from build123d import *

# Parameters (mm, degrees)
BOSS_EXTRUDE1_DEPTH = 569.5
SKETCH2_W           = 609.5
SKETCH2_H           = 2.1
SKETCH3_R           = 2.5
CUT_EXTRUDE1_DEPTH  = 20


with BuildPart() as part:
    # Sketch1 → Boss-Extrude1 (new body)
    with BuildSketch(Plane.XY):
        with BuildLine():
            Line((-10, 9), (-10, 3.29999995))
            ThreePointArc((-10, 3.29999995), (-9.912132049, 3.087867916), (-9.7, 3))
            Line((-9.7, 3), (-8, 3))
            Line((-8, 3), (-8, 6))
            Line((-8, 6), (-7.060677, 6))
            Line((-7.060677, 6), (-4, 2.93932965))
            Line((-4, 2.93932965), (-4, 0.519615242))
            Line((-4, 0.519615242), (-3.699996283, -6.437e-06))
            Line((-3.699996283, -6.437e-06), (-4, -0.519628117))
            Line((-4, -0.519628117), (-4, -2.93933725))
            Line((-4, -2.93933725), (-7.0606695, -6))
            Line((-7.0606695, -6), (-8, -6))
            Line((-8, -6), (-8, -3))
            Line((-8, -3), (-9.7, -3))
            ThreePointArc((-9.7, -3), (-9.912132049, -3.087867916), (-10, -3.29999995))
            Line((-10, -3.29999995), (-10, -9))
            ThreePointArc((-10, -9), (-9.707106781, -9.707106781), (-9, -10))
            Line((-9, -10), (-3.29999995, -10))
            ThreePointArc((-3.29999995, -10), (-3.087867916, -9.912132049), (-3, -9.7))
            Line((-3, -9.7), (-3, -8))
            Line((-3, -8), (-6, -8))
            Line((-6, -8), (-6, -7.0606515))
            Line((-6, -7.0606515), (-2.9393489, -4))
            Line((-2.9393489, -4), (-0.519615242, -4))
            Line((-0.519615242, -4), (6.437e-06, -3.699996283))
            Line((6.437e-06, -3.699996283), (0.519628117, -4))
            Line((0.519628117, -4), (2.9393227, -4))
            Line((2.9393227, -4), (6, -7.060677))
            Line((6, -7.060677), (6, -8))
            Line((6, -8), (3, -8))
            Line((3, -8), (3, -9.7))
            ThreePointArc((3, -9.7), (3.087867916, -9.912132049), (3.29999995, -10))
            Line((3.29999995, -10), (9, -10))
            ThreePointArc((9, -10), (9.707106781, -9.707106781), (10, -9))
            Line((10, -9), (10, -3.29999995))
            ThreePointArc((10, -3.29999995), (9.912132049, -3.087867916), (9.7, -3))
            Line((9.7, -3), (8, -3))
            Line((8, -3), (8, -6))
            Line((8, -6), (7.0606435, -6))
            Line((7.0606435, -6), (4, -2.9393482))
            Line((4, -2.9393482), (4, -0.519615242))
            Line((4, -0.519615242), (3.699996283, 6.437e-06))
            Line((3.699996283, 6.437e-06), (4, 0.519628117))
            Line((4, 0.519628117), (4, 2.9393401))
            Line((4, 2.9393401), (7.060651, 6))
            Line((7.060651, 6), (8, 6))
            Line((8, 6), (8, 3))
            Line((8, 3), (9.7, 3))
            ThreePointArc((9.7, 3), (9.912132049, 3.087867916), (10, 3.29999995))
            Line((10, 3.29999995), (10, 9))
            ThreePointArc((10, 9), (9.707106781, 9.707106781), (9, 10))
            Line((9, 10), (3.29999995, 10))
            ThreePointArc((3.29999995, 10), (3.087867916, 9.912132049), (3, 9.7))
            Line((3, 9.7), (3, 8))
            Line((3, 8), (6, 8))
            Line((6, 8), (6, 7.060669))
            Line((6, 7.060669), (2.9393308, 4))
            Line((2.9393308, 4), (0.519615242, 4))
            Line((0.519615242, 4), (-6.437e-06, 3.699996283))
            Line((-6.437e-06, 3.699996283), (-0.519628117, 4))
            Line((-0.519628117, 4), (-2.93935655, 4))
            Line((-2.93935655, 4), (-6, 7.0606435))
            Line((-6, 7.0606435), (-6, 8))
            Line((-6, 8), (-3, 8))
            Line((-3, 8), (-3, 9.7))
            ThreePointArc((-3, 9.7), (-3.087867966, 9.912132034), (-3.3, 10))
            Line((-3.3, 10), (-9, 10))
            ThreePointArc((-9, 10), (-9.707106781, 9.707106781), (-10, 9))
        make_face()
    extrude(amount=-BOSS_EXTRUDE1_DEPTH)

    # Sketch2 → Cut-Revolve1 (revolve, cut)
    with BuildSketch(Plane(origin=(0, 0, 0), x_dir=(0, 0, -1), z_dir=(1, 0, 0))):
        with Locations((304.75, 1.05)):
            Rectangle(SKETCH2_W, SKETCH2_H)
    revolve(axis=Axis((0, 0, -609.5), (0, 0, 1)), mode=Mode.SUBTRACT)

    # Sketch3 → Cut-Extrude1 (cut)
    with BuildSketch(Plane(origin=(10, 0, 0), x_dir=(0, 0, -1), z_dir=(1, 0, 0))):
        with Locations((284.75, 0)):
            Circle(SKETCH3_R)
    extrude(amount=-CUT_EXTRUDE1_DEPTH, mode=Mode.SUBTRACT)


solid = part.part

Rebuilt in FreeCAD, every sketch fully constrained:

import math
import FreeCAD as App
import Part
import Sketcher
from FreeCAD import Vector
Q = App.Units.Quantity

doc = App.newDocument("Part")
params = doc.addObject("Spreadsheet::Sheet", "Params")
for row, (alias, value) in enumerate([
    ("sketch1_radius", "1 mm"),
    ("sketch1_radius2", "0.3 mm"),
    ("sketch1_width", "3 mm"),
    ("sketch1_width2", "1.7 mm"),
    ("sketch1_width3", "5.7 mm"),
    ("pad1_length", "569.5 mm"),
    ("sketch2_width", "2.1 mm"),
    ("sketch2_height", "609.5 mm"),
    ("groove_angle", "360 deg"),
    ("sketch3_diameter", "5 mm"),
    ("pocket1_length", "20 mm"),
], start=1):
    params.set(f"A{row}", alias)
    params.set(f"B{row}", "=" + value)
    params.setAlias(f"B{row}", alias)

body = doc.addObject("PartDesign::Body", "Body")

# Sketch on XY plane
sketch1 = doc.addObject("Sketcher::SketchObject", "Sketch")
body.addObject(sketch1)
sketch1.AttachmentSupport = (doc.XY_Plane, [""])
sketch1.MapMode = "FlatFace"
sketch1.addGeometry([
    Part.LineSegment(Vector(-10, 9, 0), Vector(-10, 3.3, 0)),  # 0
    Part.ArcOfCircle(Part.Circle(Vector(-9.7, 3.3, 0), Vector(0, 0, 1), 0.3), math.radians(179.999989), math.radians(270.000021)),  # 1
    Part.LineSegment(Vector(-9.7, 3, 0), Vector(-8, 3, 0)),  # 2
    Part.LineSegment(Vector(-8, 3, 0), Vector(-8, 6, 0)),  # 3
    Part.LineSegment(Vector(-8, 6, 0), Vector(-7.060677, 6, 0)),  # 4
    Part.LineSegment(Vector(-7.060677, 6, 0), Vector(-4, 2.93933, 0)),  # 5
    Part.LineSegment(Vector(-4, 2.93933, 0), Vector(-4, 0.519615, 0)),  # 6
    Part.LineSegment(Vector(-4, 0.519615, 0), Vector(-3.699996, -0.000006, 0)),  # 7
    Part.LineSegment(Vector(-3.699996, -0.000006, 0), Vector(-4, -0.519628, 0)),  # 8
    Part.LineSegment(Vector(-4, -0.519628, 0), Vector(-4, -2.939337, 0)),  # 9
    Part.LineSegment(Vector(-4, -2.939337, 0), Vector(-7.06067, -6, 0)),  # 10
    Part.LineSegment(Vector(-7.06067, -6, 0), Vector(-8, -6, 0)),  # 11
    Part.LineSegment(Vector(-8, -6, 0), Vector(-8, -3, 0)),  # 12
    Part.LineSegment(Vector(-8, -3, 0), Vector(-9.7, -3, 0)),  # 13
    Part.ArcOfCircle(Part.Circle(Vector(-9.7, -3.3, 0), Vector(0, 0, 1), 0.3), math.radians(89.999979), math.radians(180.000011)),  # 14
    Part.LineSegment(Vector(-10, -3.3, 0), Vector(-10, -9, 0)),  # 15
    Part.ArcOfCircle(Part.Circle(Vector(-9, -9, 0), Vector(0, 0, 1), 1), math.radians(-180), math.radians(-90)),  # 16
    Part.LineSegment(Vector(-9, -10, 0), Vector(-3.3, -10, 0)),  # 17
    Part.ArcOfCircle(Part.Circle(Vector(-3.3, -9.7, 0), Vector(0, 0, 1), 0.3), math.radians(-90.000011), math.radians(0.000021)),  # 18
    Part.LineSegment(Vector(-3, -9.7, 0), Vector(-3, -8, 0)),  # 19
    Part.LineSegment(Vector(-3, -8, 0), Vector(-6, -8, 0)),  # 20
    Part.LineSegment(Vector(-6, -8, 0), Vector(-6, -7.060651, 0)),  # 21
    Part.LineSegment(Vector(-6, -7.060651, 0), Vector(-2.939349, -4, 0)),  # 22
    Part.LineSegment(Vector(-2.939349, -4, 0), Vector(-0.519615, -4, 0)),  # 23
    Part.LineSegment(Vector(-0.519615, -4, 0), Vector(0.000006, -3.699996, 0)),  # 24
    Part.LineSegment(Vector(0.000006, -3.699996, 0), Vector(0.519628, -4, 0)),  # 25
    Part.LineSegment(Vector(0.519628, -4, 0), Vector(2.939323, -4, 0)),  # 26
    Part.LineSegment(Vector(2.939323, -4, 0), Vector(6, -7.060677, 0)),  # 27
    Part.LineSegment(Vector(6, -7.060677, 0), Vector(6, -8, 0)),  # 28
    Part.LineSegment(Vector(6, -8, 0), Vector(3, -8, 0)),  # 29
    Part.LineSegment(Vector(3, -8, 0), Vector(3, -9.7, 0)),  # 30
    Part.ArcOfCircle(Part.Circle(Vector(3.3, -9.7, 0), Vector(0, 0, 1), 0.3), math.radians(179.999979), math.radians(270.000011)),  # 31
    Part.LineSegment(Vector(3.3, -10, 0), Vector(9, -10, 0)),  # 32
    Part.ArcOfCircle(Part.Circle(Vector(9, -9, 0), Vector(0, 0, 1), 1), math.radians(-90), math.radians(0)),  # 33
    Part.LineSegment(Vector(10, -9, 0), Vector(10, -3.3, 0)),  # 34
    Part.ArcOfCircle(Part.Circle(Vector(9.7, -3.3, 0), Vector(0, 0, 1), 0.3), math.radians(-0.000011), math.radians(90.000021)),  # 35
    Part.LineSegment(Vector(9.7, -3, 0), Vector(8, -3, 0)),  # 36
    Part.LineSegment(Vector(8, -3, 0), Vector(8, -6, 0)),  # 37
    Part.LineSegment(Vector(8, -6, 0), Vector(7.060644, -6, 0)),  # 38
    Part.LineSegment(Vector(7.060644, -6, 0), Vector(4, -2.939348, 0)),  # 39
    Part.LineSegment(Vector(4, -2.939348, 0), Vector(4, -0.519615, 0)),  # 40
    Part.LineSegment(Vector(4, -0.519615, 0), Vector(3.699996, 0.000006, 0)),  # 41
    Part.LineSegment(Vector(3.699996, 0.000006, 0), Vector(4, 0.519628, 0)),  # 42
    Part.LineSegment(Vector(4, 0.519628, 0), Vector(4, 2.93934, 0)),  # 43
    Part.LineSegment(Vector(4, 2.93934, 0), Vector(7.060651, 6, 0)),  # 44
    Part.LineSegment(Vector(7.060651, 6, 0), Vector(8, 6, 0)),  # 45
    Part.LineSegment(Vector(8, 6, 0), Vector(8, 3, 0)),  # 46
    Part.LineSegment(Vector(8, 3, 0), Vector(9.7, 3, 0)),  # 47
    Part.ArcOfCircle(Part.Circle(Vector(9.7, 3.3, 0), Vector(0, 0, 1), 0.3), math.radians(-90.000021), math.radians(0.000011)),  # 48
    Part.LineSegment(Vector(10, 3.3, 0), Vector(10, 9, 0)),  # 49
    Part.ArcOfCircle(Part.Circle(Vector(9, 9, 0), Vector(0, 0, 1), 1), math.radians(0), math.radians(90)),  # 50
    Part.LineSegment(Vector(9, 10, 0), Vector(3.3, 10, 0)),  # 51
    Part.ArcOfCircle(Part.Circle(Vector(3.3, 9.7, 0), Vector(0, 0, 1), 0.3), math.radians(89.999989), math.radians(180.000021)),  # 52
    Part.LineSegment(Vector(3, 9.7, 0), Vector(3, 8, 0)),  # 53
    Part.LineSegment(Vector(3, 8, 0), Vector(6, 8, 0)),  # 54
    Part.LineSegment(Vector(6, 8, 0), Vector(6, 7.060669, 0)),  # 55
    Part.LineSegment(Vector(6, 7.060669, 0), Vector(2.939331, 4, 0)),  # 56
    Part.LineSegment(Vector(2.939331, 4, 0), Vector(0.519615, 4, 0)),  # 57
    Part.LineSegment(Vector(0.519615, 4, 0), Vector(-0.000006, 3.699996, 0)),  # 58
    Part.LineSegment(Vector(-0.000006, 3.699996, 0), Vector(-0.519628, 4, 0)),  # 59
    Part.LineSegment(Vector(-0.519628, 4, 0), Vector(-2.939357, 4, 0)),  # 60
    Part.LineSegment(Vector(-2.939357, 4, 0), Vector(-6, 7.060644, 0)),  # 61
    Part.LineSegment(Vector(-6, 7.060644, 0), Vector(-6, 8, 0)),  # 62
    Part.LineSegment(Vector(-6, 8, 0), Vector(-3, 8, 0)),  # 63
    Part.LineSegment(Vector(-3, 8, 0), Vector(-3, 9.7, 0)),  # 64
    Part.ArcOfCircle(Part.Circle(Vector(-3.3, 9.7, 0), Vector(0, 0, 1), 0.3), math.radians(0), math.radians(90)),  # 65
    Part.LineSegment(Vector(-3.3, 10, 0), Vector(-9, 10, 0)),  # 66
    Part.ArcOfCircle(Part.Circle(Vector(-9, 9, 0), Vector(0, 0, 1), 1), math.radians(90), math.radians(180)),  # 67
], False)
sketch1.addConstraint([
    Sketcher.Constraint("Tangent", 0, 2, 1, 1),
    Sketcher.Constraint("Tangent", 1, 2, 2, 1),
    Sketcher.Constraint("Coincident", 2, 2, 3, 1),
    Sketcher.Constraint("Coincident", 3, 2, 4, 1),
    Sketcher.Constraint("Coincident", 4, 2, 5, 1),
    Sketcher.Constraint("Coincident", 5, 2, 6, 1),
    Sketcher.Constraint("Coincident", 6, 2, 7, 1),
    Sketcher.Constraint("Coincident", 7, 2, 8, 1),
    Sketcher.Constraint("Coincident", 8, 2, 9, 1),
    Sketcher.Constraint("Coincident", 9, 2, 10, 1),
    Sketcher.Constraint("Coincident", 10, 2, 11, 1),
    Sketcher.Constraint("Coincident", 11, 2, 12, 1),
    Sketcher.Constraint("Coincident", 12, 2, 13, 1),
    Sketcher.Constraint("Tangent", 13, 2, 14, 1),
    Sketcher.Constraint("Tangent", 14, 2, 15, 1),
    Sketcher.Constraint("Tangent", 15, 2, 16, 1),
    Sketcher.Constraint("Tangent", 16, 2, 17, 1),
    Sketcher.Constraint("Tangent", 17, 2, 18, 1),
    Sketcher.Constraint("Tangent", 18, 2, 19, 1),
    Sketcher.Constraint("Coincident", 19, 2, 20, 1),
    Sketcher.Constraint("Coincident", 20, 2, 21, 1),
    Sketcher.Constraint("Coincident", 21, 2, 22, 1),
    Sketcher.Constraint("Coincident", 22, 2, 23, 1),
    Sketcher.Constraint("Coincident", 23, 2, 24, 1),
    Sketcher.Constraint("Coincident", 24, 2, 25, 1),
    Sketcher.Constraint("Coincident", 25, 2, 26, 1),
    Sketcher.Constraint("Coincident", 26, 2, 27, 1),
    Sketcher.Constraint("Coincident", 27, 2, 28, 1),
    Sketcher.Constraint("Coincident", 28, 2, 29, 1),
    Sketcher.Constraint("Coincident", 29, 2, 30, 1),
    Sketcher.Constraint("Tangent", 30, 2, 31, 1),
    Sketcher.Constraint("Tangent", 31, 2, 32, 1),
    Sketcher.Constraint("Tangent", 32, 2, 33, 1),
    Sketcher.Constraint("Tangent", 33, 2, 34, 1),
    Sketcher.Constraint("Tangent", 34, 2, 35, 1),
    Sketcher.Constraint("Tangent", 35, 2, 36, 1),
    Sketcher.Constraint("Coincident", 36, 2, 37, 1),
    Sketcher.Constraint("Coincident", 37, 2, 38, 1),
    Sketcher.Constraint("Coincident", 38, 2, 39, 1),
    Sketcher.Constraint("Coincident", 39, 2, 40, 1),
    Sketcher.Constraint("Coincident", 40, 2, 41, 1),
    Sketcher.Constraint("Coincident", 41, 2, 42, 1),
    Sketcher.Constraint("Coincident", 42, 2, 43, 1),
    Sketcher.Constraint("Coincident", 43, 2, 44, 1),
    Sketcher.Constraint("Coincident", 44, 2, 45, 1),
    Sketcher.Constraint("Coincident", 45, 2, 46, 1),
    Sketcher.Constraint("Coincident", 46, 2, 47, 1),
    Sketcher.Constraint("Tangent", 47, 2, 48, 1),
    Sketcher.Constraint("Tangent", 48, 2, 49, 1),
    Sketcher.Constraint("Tangent", 49, 2, 50, 1),
    Sketcher.Constraint("Tangent", 50, 2, 51, 1),
    Sketcher.Constraint("Tangent", 51, 2, 52, 1),
    Sketcher.Constraint("Tangent", 52, 2, 53, 1),
    Sketcher.Constraint("Coincident", 53, 2, 54, 1),
    Sketcher.Constraint("Coincident", 54, 2, 55, 1),
    Sketcher.Constraint("Coincident", 55, 2, 56, 1),
    Sketcher.Constraint("Coincident", 56, 2, 57, 1),
    Sketcher.Constraint("Coincident", 57, 2, 58, 1),
    Sketcher.Constraint("Coincident", 58, 2, 59, 1),
    Sketcher.Constraint("Coincident", 59, 2, 60, 1),
    Sketcher.Constraint("Coincident", 60, 2, 61, 1),
    Sketcher.Constraint("Coincident", 61, 2, 62, 1),
    Sketcher.Constraint("Coincident", 62, 2, 63, 1),
    Sketcher.Constraint("Coincident", 63, 2, 64, 1),
    Sketcher.Constraint("Tangent", 64, 2, 65, 1),
    Sketcher.Constraint("Tangent", 65, 2, 66, 1),
    Sketcher.Constraint("Tangent", 66, 2, 67, 1),
    Sketcher.Constraint("Tangent", 67, 2, 0, 1),
    Sketcher.Constraint("Vertical", 0),
    Sketcher.Constraint("Horizontal", 2),
    Sketcher.Constraint("Vertical", 3),
    Sketcher.Constraint("Horizontal", 4),
    Sketcher.Constraint("Vertical", 6),
    Sketcher.Constraint("Vertical", 9),
    Sketcher.Constraint("Horizontal", 11),
    Sketcher.Constraint("Vertical", 12),
    Sketcher.Constraint("Horizontal", 13),
    Sketcher.Constraint("Vertical", 15),
    Sketcher.Constraint("Horizontal", 17),
    Sketcher.Constraint("Vertical", 19),
    Sketcher.Constraint("Horizontal", 20),
    Sketcher.Constraint("Vertical", 21),
    Sketcher.Constraint("Horizontal", 23),
    Sketcher.Constraint("Horizontal", 26),
    Sketcher.Constraint("Vertical", 28),
    Sketcher.Constraint("Horizontal", 29),
    Sketcher.Constraint("Vertical", 30),
    Sketcher.Constraint("Horizontal", 32),
    Sketcher.Constraint("Vertical", 34),
    Sketcher.Constraint("Horizontal", 36),
    Sketcher.Constraint("Vertical", 37),
    Sketcher.Constraint("Horizontal", 38),
    Sketcher.Constraint("Vertical", 40),
    Sketcher.Constraint("Vertical", 43),
    Sketcher.Constraint("Horizontal", 45),
    Sketcher.Constraint("Vertical", 46),
    Sketcher.Constraint("Horizontal", 47),
    Sketcher.Constraint("Vertical", 49),
    Sketcher.Constraint("Horizontal", 51),
    Sketcher.Constraint("Vertical", 53),
    Sketcher.Constraint("Horizontal", 54),
    Sketcher.Constraint("Vertical", 55),
    Sketcher.Constraint("Horizontal", 57),
    Sketcher.Constraint("Horizontal", 60),
    Sketcher.Constraint("Vertical", 62),
    Sketcher.Constraint("Horizontal", 63),
    Sketcher.Constraint("Vertical", 64),
    Sketcher.Constraint("Horizontal", 66),
    Sketcher.Constraint("Equal", 1, 14),
    Sketcher.Constraint("Equal", 14, 18),
    Sketcher.Constraint("Equal", 18, 31),
    Sketcher.Constraint("Equal", 16, 33),
    Sketcher.Constraint("Equal", 31, 35),
    Sketcher.Constraint("Equal", 35, 48),
    Sketcher.Constraint("Equal", 33, 50),
    Sketcher.Constraint("Equal", 48, 52),
    Sketcher.Constraint("Equal", 52, 65),
    Sketcher.Constraint("Equal", 50, 67),
    Sketcher.Constraint("Symmetric", 1, 3, 35, 3, -1, 1),
    Sketcher.Constraint("Symmetric", 14, 3, 48, 3, -1, 1),
    Sketcher.Constraint("Symmetric", 18, 3, 52, 3, -1, 1),
    Sketcher.Constraint("Symmetric", 31, 3, 65, 3, -1, 1),
    Sketcher.Constraint("Symmetric", 3, 2, 37, 2, -1, 1),
    Sketcher.Constraint("Symmetric", 6, 2, 40, 2, -1, 1),
    Sketcher.Constraint("Symmetric", 7, 2, 41, 2, -1, 1),
    Sketcher.Constraint("Symmetric", 8, 2, 42, 2, -1, 1),
    Sketcher.Constraint("Symmetric", 11, 2, 45, 2, -1, 1),
    Sketcher.Constraint("Symmetric", 20, 2, 54, 2, -1, 1),
    Sketcher.Constraint("Symmetric", 23, 2, 57, 2, -1, 1),
    Sketcher.Constraint("Symmetric", 24, 2, 58, 2, -1, 1),
    Sketcher.Constraint("Symmetric", 25, 2, 59, 2, -1, 1),
    Sketcher.Constraint("Symmetric", 28, 2, 62, 2, -1, 1),
    Sketcher.Constraint("Symmetric", 18, 3, 31, 3, -2),
    Sketcher.Constraint("Symmetric", 14, 3, 35, 3, -2),
    Sketcher.Constraint("Symmetric", 20, 2, 28, 2, -2),
    Sketcher.Constraint("Symmetric", 11, 2, 37, 2, -2),
    Sketcher.Constraint("Symmetric", 5, 2, 9, 2, -1),
    Sketcher.Constraint("Symmetric", 26, 2, 56, 2, -1),
    Sketcher.Constraint("Parallel", 10, 22),
    Sketcher.Constraint("Perpendicular", 7, 24),
    Sketcher.Constraint("Perpendicular", 8, 25),
    Sketcher.Constraint("Perpendicular", 22, 27),
    Sketcher.Constraint("Parallel", 27, 39),
    Sketcher.Constraint("Perpendicular", 27, 44),
    Sketcher.Constraint("Parallel", 44, 56),
    Sketcher.Constraint("Perpendicular", 56, 61),
    Sketcher.Constraint("Equal", 66, 0),
    Sketcher.Constraint("Equal", 63, 3),
    Sketcher.Constraint("Equal", 57, 6),
    Sketcher.Constraint("Equal", 47, 19),
    Sketcher.Constraint("Equal", 45, 21),
    Sketcher.Constraint("Equal", 4, 28),
    Sketcher.Constraint("Equal", 23, 40),
    Sketcher.Constraint("Equal", 11, 55),
    Sketcher.Constraint("Equal", 38, 62),
    Sketcher.Constraint("Equal", 7, 8),
    Sketcher.Constraint("Equal", 8, 24),
    Sketcher.Constraint("Radius", 16, 1.0),
    Sketcher.Constraint("Radius", 1, 0.3),
    Sketcher.Constraint("DistanceX", 20, 2, 20, 1, 3.0),
    Sketcher.Constraint("Angle", 7, Q("-60 deg")),
    Sketcher.Constraint("Angle", 22, Q("45.000004 deg")),
    Sketcher.Constraint("DistanceX", 2, 1, 2, 2, 1.7),
    Sketcher.Constraint("DistanceX", 17, 1, 17, 2, 5.7),
    Sketcher.Constraint("DistanceX", 16, 3, -1, 1, 9.0),
    Sketcher.Constraint("DistanceY", 16, 3, -1, 1, 9.0),
    Sketcher.Constraint("DistanceX", 5, 2, -1, 1, 4.0),
    Sketcher.Constraint("DistanceY", 22, 2, -1, 1, 4.0),
    Sketcher.Constraint("DistanceX", 11, 2, 11, 1, 0.93933),
    Sketcher.Constraint("DistanceX", 45, 1, 45, 2, 0.939349),
    Sketcher.Constraint("DistanceX", 60, 2, 60, 1, 2.419728),
    Sketcher.Constraint("DistanceX", 23, 1, 23, 2, 2.419734),
])
sketch1.setExpression("Constraints[157]", "Params.sketch1_radius")
sketch1.setExpression("Constraints[158]", "Params.sketch1_radius2")
sketch1.setExpression("Constraints[159]", "Params.sketch1_width")
sketch1.setExpression("Constraints[162]", "Params.sketch1_width2")
sketch1.setExpression("Constraints[163]", "Params.sketch1_width3")
pad1 = doc.addObject("PartDesign::Pad", "Pad")
body.addObject(pad1)
pad1.Profile = sketch1
pad1.setExpression("Length", "Params.pad1_length")
pad1.Reversed = True

# Sketch on YZ plane
sketch2 = doc.addObject("Sketcher::SketchObject", "Sketch001")
body.addObject(sketch2)
sketch2.AttachmentSupport = (doc.YZ_Plane, [""])
sketch2.MapMode = "FlatFace"
sketch2.addGeometry([
    Part.LineSegment(Vector(2.1, 0, 0), Vector(0, 0, 0)),
    Part.LineSegment(Vector(0, 0, 0), Vector(0, -609.5, 0)),
    Part.LineSegment(Vector(0, -609.5, 0), Vector(2.1, -609.5, 0)),
    Part.LineSegment(Vector(2.1, -609.5, 0), Vector(2.1, 0, 0)),
], False)
sketch2.addConstraint([
    Sketcher.Constraint("Coincident", 0, 2, 1, 1),
    Sketcher.Constraint("Coincident", 1, 2, 2, 1),
    Sketcher.Constraint("Coincident", 2, 2, 3, 1),
    Sketcher.Constraint("Coincident", 3, 2, 0, 1),
    Sketcher.Constraint("Horizontal", 0),
    Sketcher.Constraint("Vertical", 1),
    Sketcher.Constraint("Horizontal", 2),
    Sketcher.Constraint("Vertical", 3),
    Sketcher.Constraint("Coincident", 0, 2, -1, 1),
    Sketcher.Constraint("DistanceX", 0, 2, 0, 1, 2.1),
    Sketcher.Constraint("DistanceY", 1, 2, 1, 1, 609.5),
])
sketch2.setExpression("Constraints[9]", "Params.sketch2_width")
sketch2.setExpression("Constraints[10]", "Params.sketch2_height")
groove = doc.addObject("PartDesign::Groove", "Groove")
body.addObject(groove)
groove.Profile = sketch2
groove.ReferenceAxis = (sketch2, ["V_Axis"])
groove.setExpression("Angle", "Params.groove_angle")

# Sketch on YZ plane
sketch3 = doc.addObject("Sketcher::SketchObject", "Sketch002")
body.addObject(sketch3)
sketch3.AttachmentSupport = (doc.YZ_Plane, [""])
sketch3.MapMode = "FlatFace"
sketch3.AttachmentOffset = App.Placement(Vector(0, 0, 10), App.Rotation())
sketch3.addGeometry(Part.Circle(Vector(0, -284.75, 0), Vector(0, 0, 1), 2.5), False)
sketch3.addConstraint([
    Sketcher.Constraint("PointOnObject", 0, 3, -2),
    Sketcher.Constraint("Diameter", 0, 5.0),
    Sketcher.Constraint("DistanceY", 0, 3, -1, 1, 284.75),
])
sketch3.setExpression("Constraints[1]", "Params.sketch3_diameter")
pocket1 = doc.addObject("PartDesign::Pocket", "Pocket")
body.addObject(pocket1)
pocket1.Profile = sketch3
pocket1.setExpression("Length", "Params.pocket1_length")

doc.recompute()
